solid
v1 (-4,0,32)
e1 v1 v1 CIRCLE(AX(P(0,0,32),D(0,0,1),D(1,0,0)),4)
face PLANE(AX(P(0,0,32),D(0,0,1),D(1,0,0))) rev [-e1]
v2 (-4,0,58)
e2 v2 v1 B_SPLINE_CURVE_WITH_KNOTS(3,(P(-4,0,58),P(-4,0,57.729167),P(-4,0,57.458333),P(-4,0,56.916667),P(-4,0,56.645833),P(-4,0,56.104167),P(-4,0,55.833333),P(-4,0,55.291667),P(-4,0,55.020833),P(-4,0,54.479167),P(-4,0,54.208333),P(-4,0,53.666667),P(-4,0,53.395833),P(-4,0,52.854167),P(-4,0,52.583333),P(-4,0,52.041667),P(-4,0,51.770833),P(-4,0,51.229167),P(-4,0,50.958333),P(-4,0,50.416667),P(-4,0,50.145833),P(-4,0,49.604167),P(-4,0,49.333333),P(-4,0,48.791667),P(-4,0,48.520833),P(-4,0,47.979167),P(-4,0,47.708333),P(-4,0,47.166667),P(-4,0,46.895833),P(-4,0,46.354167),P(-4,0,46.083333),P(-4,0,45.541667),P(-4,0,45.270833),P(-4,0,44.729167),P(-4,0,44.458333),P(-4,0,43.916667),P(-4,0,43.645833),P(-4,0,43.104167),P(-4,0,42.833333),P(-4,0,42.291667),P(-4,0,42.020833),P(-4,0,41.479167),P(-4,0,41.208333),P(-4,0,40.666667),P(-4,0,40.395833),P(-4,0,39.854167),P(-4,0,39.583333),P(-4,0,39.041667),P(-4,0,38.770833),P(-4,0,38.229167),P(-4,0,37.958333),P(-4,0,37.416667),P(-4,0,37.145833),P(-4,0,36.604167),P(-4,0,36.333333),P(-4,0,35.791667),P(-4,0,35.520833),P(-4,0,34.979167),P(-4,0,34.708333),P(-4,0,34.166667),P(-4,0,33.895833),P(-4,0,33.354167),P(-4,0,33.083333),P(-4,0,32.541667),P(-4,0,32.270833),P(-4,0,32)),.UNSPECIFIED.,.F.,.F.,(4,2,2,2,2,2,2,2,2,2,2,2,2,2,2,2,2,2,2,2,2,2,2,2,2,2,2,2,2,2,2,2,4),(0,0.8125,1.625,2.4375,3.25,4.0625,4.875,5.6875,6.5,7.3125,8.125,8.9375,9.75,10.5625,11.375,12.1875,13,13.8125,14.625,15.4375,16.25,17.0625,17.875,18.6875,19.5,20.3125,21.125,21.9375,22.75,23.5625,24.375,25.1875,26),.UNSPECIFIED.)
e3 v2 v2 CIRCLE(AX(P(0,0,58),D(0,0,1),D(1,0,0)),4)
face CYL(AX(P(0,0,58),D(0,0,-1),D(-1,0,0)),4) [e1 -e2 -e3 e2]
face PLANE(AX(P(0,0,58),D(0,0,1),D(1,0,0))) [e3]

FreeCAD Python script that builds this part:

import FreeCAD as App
import Part
import Sketcher

doc = App.newDocument("Part")
body = doc.addObject("PartDesign::Body", "Body")

# Sketch on XY plane
sketch1 = doc.addObject("Sketcher::SketchObject", "Sketch")
body.addObject(sketch1)
sketch1.AttachmentSupport = (doc.XY_Plane, [""])
sketch1.MapMode = "FlatFace"
sketch1.AttachmentOffset = App.Placement(App.Vector(0, 0, 32), App.Rotation())
sketch1.addGeometry(Part.Circle(App.Vector(0, 0, 0), App.Vector(0, 0, 1), 4), False)
sketch1.addConstraint([
    Sketcher.Constraint("Coincident", 0, 3, -1, 1),
    Sketcher.Constraint("Diameter", 0, 8.0),
])
pad1 = doc.addObject("PartDesign::Pad", "Pad")
body.addObject(pad1)
pad1.Profile = sketch1
pad1.Length = 26

doc.recompute()
